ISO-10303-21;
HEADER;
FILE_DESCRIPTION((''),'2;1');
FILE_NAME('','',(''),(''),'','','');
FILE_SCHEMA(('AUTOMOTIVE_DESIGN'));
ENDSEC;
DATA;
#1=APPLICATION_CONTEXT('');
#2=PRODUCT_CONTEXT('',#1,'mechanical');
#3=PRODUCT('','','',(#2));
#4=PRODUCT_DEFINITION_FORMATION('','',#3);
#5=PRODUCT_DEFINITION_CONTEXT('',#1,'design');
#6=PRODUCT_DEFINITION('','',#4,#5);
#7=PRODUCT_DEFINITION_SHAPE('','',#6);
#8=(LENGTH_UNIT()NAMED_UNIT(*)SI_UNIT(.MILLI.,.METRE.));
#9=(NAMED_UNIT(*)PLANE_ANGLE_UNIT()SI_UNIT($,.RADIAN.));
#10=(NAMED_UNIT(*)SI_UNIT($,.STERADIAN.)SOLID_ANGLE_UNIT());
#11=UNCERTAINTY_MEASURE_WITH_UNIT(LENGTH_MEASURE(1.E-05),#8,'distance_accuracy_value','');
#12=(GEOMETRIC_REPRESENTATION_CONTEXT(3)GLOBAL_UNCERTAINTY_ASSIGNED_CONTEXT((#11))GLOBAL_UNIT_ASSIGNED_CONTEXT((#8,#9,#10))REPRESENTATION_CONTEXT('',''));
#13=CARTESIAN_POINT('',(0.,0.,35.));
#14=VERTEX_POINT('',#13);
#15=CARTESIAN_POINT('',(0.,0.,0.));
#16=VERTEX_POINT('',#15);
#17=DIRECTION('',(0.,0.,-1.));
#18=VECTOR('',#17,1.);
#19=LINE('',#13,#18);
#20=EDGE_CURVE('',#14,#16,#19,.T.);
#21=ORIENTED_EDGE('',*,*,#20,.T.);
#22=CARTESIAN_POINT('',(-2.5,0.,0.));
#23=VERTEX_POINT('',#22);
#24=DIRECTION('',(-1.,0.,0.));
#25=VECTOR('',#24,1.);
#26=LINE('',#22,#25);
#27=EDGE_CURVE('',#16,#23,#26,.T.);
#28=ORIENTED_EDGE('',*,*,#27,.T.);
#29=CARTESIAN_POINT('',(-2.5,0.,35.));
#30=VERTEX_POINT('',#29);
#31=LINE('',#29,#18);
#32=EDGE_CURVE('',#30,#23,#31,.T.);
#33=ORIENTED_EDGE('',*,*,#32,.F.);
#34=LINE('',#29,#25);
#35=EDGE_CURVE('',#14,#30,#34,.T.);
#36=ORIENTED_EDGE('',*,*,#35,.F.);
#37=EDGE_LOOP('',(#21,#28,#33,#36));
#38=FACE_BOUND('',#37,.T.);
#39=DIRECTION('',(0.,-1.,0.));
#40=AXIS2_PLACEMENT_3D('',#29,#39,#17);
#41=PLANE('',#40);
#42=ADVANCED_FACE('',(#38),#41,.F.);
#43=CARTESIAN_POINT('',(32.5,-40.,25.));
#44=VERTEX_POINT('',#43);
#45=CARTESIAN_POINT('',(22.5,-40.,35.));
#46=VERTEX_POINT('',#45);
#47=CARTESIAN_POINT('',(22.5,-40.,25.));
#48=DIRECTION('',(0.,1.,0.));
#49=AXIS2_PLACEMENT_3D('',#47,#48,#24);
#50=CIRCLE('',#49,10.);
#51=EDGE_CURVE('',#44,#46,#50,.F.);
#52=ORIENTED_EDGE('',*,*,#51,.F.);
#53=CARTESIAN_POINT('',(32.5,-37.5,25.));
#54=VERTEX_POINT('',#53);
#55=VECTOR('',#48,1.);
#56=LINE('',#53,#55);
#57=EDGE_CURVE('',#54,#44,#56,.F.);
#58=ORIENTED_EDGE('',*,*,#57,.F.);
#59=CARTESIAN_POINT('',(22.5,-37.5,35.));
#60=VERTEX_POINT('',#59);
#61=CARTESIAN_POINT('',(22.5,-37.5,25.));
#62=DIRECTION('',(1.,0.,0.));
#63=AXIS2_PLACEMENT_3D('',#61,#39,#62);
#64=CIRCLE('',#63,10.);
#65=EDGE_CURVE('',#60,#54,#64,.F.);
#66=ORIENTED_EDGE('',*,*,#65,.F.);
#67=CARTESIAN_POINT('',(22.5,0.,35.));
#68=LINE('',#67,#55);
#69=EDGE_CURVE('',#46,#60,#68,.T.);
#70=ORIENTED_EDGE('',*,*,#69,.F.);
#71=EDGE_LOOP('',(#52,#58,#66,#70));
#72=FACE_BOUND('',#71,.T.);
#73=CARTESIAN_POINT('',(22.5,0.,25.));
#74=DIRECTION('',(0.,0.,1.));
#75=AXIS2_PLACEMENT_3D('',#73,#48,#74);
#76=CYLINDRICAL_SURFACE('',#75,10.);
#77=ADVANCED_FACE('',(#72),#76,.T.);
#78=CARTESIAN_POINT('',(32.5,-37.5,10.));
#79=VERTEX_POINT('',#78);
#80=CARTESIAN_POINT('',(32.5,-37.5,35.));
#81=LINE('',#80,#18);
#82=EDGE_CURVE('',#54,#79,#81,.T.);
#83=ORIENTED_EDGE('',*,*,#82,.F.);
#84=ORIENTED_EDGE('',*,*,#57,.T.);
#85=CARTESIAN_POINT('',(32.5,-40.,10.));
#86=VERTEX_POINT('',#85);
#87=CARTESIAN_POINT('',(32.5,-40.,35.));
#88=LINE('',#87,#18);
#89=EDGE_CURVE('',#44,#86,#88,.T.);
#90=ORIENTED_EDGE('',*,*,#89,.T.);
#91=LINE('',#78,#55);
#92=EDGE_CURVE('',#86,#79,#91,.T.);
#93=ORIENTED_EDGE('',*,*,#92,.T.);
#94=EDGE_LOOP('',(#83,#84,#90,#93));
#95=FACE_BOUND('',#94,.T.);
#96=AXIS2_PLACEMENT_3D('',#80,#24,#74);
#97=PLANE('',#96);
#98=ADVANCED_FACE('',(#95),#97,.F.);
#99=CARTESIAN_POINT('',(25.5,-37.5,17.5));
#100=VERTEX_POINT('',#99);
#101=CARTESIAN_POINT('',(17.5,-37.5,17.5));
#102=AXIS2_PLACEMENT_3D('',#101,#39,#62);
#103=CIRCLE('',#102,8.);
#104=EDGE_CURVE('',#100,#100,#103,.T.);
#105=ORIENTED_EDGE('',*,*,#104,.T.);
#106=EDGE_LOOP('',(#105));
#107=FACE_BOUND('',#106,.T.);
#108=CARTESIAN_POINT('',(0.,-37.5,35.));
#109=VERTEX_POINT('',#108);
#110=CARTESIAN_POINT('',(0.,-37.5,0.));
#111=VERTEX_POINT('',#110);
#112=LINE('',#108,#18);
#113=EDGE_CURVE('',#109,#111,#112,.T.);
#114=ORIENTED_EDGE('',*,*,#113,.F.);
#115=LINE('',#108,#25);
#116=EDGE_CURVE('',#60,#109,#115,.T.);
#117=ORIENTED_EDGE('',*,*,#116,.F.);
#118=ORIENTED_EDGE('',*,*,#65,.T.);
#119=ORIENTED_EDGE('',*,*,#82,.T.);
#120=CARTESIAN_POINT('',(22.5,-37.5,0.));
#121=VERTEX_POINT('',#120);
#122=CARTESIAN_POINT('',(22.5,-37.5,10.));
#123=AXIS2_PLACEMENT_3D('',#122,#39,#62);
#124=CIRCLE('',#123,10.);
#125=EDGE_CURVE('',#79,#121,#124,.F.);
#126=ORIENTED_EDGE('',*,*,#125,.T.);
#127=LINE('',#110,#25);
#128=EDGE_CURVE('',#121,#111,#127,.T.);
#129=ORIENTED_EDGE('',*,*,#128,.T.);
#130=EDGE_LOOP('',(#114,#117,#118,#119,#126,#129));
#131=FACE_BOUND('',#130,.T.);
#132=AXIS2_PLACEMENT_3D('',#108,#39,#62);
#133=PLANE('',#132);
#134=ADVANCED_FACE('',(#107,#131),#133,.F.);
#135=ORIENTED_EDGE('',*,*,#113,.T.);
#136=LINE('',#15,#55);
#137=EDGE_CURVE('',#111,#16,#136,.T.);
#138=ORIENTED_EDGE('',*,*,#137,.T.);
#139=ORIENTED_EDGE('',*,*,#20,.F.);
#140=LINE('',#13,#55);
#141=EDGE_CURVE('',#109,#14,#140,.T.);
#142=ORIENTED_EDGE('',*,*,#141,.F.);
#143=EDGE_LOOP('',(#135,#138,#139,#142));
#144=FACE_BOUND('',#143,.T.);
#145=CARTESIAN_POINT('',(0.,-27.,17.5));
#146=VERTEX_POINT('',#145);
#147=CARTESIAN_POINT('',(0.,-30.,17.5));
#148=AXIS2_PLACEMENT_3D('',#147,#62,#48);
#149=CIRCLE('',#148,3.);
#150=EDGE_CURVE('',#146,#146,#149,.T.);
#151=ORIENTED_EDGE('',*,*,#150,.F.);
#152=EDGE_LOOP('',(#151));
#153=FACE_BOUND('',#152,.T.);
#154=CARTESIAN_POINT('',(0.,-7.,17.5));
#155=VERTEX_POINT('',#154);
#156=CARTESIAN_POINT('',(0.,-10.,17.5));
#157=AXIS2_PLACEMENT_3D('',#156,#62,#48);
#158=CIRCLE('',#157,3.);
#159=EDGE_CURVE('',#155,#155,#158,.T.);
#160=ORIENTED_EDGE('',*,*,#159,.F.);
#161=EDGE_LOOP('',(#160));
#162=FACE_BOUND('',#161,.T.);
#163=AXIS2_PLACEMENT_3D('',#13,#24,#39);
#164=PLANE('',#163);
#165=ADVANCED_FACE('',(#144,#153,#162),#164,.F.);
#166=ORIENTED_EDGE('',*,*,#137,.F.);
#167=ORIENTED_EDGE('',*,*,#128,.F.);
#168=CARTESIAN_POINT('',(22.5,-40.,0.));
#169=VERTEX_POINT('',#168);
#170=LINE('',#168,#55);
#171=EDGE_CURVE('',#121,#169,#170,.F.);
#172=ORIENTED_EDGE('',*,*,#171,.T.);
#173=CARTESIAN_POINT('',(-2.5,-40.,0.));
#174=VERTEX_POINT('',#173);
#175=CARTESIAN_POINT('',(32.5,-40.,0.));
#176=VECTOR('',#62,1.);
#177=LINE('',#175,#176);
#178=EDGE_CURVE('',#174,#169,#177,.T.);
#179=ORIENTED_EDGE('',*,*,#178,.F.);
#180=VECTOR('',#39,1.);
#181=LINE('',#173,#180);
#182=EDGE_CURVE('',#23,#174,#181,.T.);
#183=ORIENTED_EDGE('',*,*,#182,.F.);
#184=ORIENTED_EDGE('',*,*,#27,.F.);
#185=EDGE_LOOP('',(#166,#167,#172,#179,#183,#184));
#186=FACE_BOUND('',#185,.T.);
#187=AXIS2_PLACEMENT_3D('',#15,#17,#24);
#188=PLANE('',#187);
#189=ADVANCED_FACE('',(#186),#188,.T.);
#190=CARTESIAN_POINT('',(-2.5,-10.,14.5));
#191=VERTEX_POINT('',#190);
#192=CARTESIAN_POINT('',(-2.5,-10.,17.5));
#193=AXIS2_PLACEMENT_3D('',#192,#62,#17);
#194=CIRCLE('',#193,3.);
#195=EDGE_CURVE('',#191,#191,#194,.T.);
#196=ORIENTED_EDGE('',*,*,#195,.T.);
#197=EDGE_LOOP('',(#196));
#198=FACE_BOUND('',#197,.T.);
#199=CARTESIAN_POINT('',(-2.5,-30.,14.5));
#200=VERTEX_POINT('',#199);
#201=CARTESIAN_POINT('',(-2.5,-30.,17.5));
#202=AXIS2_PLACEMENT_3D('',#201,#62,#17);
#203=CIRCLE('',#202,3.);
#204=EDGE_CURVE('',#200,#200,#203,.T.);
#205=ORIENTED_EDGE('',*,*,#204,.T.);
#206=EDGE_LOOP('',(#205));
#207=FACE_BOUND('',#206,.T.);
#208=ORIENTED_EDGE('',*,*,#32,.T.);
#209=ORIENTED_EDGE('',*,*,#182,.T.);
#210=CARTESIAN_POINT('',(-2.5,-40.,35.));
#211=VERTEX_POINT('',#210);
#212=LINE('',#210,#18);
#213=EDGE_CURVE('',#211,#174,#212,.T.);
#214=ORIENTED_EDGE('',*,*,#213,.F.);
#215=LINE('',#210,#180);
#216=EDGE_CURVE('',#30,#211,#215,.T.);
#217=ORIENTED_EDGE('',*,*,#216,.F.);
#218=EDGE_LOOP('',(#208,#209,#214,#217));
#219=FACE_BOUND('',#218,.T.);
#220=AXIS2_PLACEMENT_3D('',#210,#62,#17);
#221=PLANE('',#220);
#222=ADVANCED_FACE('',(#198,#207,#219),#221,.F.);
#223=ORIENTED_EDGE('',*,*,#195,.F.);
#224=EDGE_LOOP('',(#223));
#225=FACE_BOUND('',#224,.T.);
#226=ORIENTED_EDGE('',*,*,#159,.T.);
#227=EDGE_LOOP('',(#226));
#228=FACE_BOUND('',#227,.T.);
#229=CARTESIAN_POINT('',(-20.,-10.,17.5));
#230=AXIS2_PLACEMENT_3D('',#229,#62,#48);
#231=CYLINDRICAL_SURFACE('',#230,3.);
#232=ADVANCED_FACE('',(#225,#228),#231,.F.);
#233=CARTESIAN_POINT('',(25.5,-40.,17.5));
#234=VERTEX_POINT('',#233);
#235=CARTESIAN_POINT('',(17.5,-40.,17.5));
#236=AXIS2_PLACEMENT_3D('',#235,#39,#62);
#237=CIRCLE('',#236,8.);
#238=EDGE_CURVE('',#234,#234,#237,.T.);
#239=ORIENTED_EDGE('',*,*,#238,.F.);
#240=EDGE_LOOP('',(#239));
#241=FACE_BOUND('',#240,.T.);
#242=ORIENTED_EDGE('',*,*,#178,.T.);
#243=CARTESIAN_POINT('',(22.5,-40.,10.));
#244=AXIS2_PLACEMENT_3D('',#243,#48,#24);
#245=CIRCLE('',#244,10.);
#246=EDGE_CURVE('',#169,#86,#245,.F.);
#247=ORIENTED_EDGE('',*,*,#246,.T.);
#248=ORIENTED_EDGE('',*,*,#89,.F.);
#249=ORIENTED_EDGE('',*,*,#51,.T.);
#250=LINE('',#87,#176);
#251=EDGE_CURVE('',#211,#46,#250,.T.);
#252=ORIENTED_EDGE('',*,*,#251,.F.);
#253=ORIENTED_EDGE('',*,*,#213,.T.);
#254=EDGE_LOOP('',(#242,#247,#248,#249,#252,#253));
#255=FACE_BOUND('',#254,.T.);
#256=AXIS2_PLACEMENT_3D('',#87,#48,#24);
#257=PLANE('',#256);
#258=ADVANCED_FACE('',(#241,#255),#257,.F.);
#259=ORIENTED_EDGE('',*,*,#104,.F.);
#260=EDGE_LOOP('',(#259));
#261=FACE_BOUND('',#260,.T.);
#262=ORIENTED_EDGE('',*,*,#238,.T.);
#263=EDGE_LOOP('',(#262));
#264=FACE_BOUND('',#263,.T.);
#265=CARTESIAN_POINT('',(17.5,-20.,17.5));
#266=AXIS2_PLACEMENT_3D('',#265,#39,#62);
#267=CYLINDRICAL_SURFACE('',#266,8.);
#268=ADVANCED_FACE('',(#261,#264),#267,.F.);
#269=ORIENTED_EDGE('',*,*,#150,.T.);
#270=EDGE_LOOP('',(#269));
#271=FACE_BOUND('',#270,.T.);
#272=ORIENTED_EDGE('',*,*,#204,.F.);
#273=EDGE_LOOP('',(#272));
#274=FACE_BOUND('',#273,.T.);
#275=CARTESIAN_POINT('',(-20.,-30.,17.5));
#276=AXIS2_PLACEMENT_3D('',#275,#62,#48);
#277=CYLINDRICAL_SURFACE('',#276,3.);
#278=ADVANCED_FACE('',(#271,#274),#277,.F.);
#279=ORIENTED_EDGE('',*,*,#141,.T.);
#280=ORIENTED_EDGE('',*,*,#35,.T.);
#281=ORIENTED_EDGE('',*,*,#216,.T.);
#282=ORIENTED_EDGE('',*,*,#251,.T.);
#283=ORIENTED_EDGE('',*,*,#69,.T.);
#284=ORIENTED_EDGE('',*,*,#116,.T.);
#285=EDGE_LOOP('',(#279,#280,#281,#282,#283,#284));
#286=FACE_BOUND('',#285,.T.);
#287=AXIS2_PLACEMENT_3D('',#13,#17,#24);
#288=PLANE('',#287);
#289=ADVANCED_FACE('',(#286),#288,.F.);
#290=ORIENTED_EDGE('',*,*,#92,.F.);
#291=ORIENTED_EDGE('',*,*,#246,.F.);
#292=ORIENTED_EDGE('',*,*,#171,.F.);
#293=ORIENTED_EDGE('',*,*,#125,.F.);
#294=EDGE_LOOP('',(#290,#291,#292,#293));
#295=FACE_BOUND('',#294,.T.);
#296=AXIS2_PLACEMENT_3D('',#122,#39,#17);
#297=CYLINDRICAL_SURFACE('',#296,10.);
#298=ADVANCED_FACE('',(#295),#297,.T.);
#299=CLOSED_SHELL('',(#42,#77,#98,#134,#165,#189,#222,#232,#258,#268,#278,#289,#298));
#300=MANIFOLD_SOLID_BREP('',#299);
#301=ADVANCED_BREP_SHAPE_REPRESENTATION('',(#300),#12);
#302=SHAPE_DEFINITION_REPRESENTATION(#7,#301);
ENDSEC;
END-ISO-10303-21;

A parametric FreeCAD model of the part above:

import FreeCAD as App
import Part
import Sketcher


def edges_at(feature, points):
    """Names of the edges that pass closest to the given points."""
    edges = feature.Shape.Edges
    near = lambda p: min(range(len(edges)), key=lambda i: edges[i].distToShape(Part.Vertex(*p))[0])
    return sorted({f"Edge{near(p) + 1}" for p in points})

doc = App.newDocument("Part")
body = doc.addObject("PartDesign::Body", "Body")

sketch1 = doc.addObject("Sketcher::SketchObject", "Sketch")
body.addObject(sketch1)
sketch1.AttachmentSupport = (doc.XY_Plane, [""])
sketch1.MapMode = "FlatFace"
sketch1.addGeometry([
    Part.LineSegment(App.Vector(0, -37.5, 0), App.Vector(0, 0, 0)),
    Part.LineSegment(App.Vector(0, 0, 0), App.Vector(-2.5, 0, 0)),
    Part.LineSegment(App.Vector(-2.5, 0, 0), App.Vector(-2.5, -40, 0)),
    Part.LineSegment(App.Vector(-2.5, -40, 0), App.Vector(32.5, -40, 0)),
    Part.LineSegment(App.Vector(32.5, -40, 0), App.Vector(32.5, -37.5, 0)),
    Part.LineSegment(App.Vector(32.5, -37.5, 0), App.Vector(0, -37.5, 0)),
], False)
sketch1.addConstraint([
    Sketcher.Constraint("Coincident", 0, 2, 1, 1),
    Sketcher.Constraint("Coincident", 1, 2, 2, 1),
    Sketcher.Constraint("Coincident", 2, 2, 3, 1),
    Sketcher.Constraint("Coincident", 3, 2, 4, 1),
    Sketcher.Constraint("Coincident", 4, 2, 5, 1),
    Sketcher.Constraint("Coincident", 5, 2, 0, 1),
    Sketcher.Constraint("Vertical", 0),
    Sketcher.Constraint("Horizontal", 1),
    Sketcher.Constraint("Vertical", 2),
    Sketcher.Constraint("Horizontal", 3),
    Sketcher.Constraint("Vertical", 4),
    Sketcher.Constraint("Horizontal", 5),
    Sketcher.Constraint("Coincident", 0, 2, -1, 1),
    Sketcher.Constraint("Equal", 1, 4),
    Sketcher.Constraint("DistanceX", 3, 1, 3, 2, 35.0),
    Sketcher.Constraint("DistanceY", 2, 2, 2, 1, 40.0),
    Sketcher.Constraint("DistanceX", 1, 2, 1, 1, 2.5),
])
pad1 = doc.addObject("PartDesign::Pad", "Pad")
body.addObject(pad1)
pad1.Profile = sketch1
pad1.Length = 35

sketch2 = doc.addObject("Sketcher::SketchObject", "Sketch001")
body.addObject(sketch2)
sketch2.AttachmentSupport = (doc.XZ_Plane, [""])
sketch2.MapMode = "FlatFace"
sketch2.AttachmentOffset = App.Placement(App.Vector(0, 0, 40), App.Rotation())
sketch2.addGeometry(Part.Circle(App.Vector(18, 18, 0), App.Vector(0, 0, 1), 8), False)
sketch2.addConstraint([
    Sketcher.Constraint("Diameter", 0, 16.0),
    Sketcher.Constraint("DistanceX", -1, 1, 0, 3, 17.5),
    Sketcher.Constraint("DistanceY", -1, 1, 0, 3, 17.5),
])
pocket1 = doc.addObject("PartDesign::Pocket", "Pocket")
body.addObject(pocket1)
pocket1.Profile = sketch2
pocket1.Length = 20

sketch3 = doc.addObject("Sketcher::SketchObject", "Sketch002")
body.addObject(sketch3)
sketch3.AttachmentSupport = (doc.YZ_Plane, [""])
sketch3.MapMode = "FlatFace"
sketch3.addGeometry([
    Part.Circle(App.Vector(-10, 17.5, 0), App.Vector(0, 0, 1), 3),
    Part.Circle(App.Vector(-30, 17.5, 0), App.Vector(0, 0, 1), 3),
], False)
sketch3.addConstraint([
    Sketcher.Constraint("Equal", 0, 1),
    Sketcher.Constraint("Horizontal", 0, 3, 1, 3),
    Sketcher.Constraint("Diameter", 0, 6.0),
    Sketcher.Constraint("DistanceX", 0, 3, -1, 1, 10.0),
    Sketcher.Constraint("DistanceX", 1, 3, -1, 1, 30.0),
    Sketcher.Constraint("DistanceY", -1, 1, 0, 3, 17.5),
])
pocket2 = doc.addObject("PartDesign::Pocket", "Pocket001")
body.addObject(pocket2)
pocket2.Profile = sketch3
pocket2.Length = 20
doc.recompute()

fillet = doc.addObject("PartDesign::Fillet", "Fillet")
body.addObject(fillet)
fillet.Base = (pocket2, edges_at(pocket2, [(32.5, -38.75, 35), (32.5, -38.75, 0)]))
fillet.Radius = 10

doc.recompute()
